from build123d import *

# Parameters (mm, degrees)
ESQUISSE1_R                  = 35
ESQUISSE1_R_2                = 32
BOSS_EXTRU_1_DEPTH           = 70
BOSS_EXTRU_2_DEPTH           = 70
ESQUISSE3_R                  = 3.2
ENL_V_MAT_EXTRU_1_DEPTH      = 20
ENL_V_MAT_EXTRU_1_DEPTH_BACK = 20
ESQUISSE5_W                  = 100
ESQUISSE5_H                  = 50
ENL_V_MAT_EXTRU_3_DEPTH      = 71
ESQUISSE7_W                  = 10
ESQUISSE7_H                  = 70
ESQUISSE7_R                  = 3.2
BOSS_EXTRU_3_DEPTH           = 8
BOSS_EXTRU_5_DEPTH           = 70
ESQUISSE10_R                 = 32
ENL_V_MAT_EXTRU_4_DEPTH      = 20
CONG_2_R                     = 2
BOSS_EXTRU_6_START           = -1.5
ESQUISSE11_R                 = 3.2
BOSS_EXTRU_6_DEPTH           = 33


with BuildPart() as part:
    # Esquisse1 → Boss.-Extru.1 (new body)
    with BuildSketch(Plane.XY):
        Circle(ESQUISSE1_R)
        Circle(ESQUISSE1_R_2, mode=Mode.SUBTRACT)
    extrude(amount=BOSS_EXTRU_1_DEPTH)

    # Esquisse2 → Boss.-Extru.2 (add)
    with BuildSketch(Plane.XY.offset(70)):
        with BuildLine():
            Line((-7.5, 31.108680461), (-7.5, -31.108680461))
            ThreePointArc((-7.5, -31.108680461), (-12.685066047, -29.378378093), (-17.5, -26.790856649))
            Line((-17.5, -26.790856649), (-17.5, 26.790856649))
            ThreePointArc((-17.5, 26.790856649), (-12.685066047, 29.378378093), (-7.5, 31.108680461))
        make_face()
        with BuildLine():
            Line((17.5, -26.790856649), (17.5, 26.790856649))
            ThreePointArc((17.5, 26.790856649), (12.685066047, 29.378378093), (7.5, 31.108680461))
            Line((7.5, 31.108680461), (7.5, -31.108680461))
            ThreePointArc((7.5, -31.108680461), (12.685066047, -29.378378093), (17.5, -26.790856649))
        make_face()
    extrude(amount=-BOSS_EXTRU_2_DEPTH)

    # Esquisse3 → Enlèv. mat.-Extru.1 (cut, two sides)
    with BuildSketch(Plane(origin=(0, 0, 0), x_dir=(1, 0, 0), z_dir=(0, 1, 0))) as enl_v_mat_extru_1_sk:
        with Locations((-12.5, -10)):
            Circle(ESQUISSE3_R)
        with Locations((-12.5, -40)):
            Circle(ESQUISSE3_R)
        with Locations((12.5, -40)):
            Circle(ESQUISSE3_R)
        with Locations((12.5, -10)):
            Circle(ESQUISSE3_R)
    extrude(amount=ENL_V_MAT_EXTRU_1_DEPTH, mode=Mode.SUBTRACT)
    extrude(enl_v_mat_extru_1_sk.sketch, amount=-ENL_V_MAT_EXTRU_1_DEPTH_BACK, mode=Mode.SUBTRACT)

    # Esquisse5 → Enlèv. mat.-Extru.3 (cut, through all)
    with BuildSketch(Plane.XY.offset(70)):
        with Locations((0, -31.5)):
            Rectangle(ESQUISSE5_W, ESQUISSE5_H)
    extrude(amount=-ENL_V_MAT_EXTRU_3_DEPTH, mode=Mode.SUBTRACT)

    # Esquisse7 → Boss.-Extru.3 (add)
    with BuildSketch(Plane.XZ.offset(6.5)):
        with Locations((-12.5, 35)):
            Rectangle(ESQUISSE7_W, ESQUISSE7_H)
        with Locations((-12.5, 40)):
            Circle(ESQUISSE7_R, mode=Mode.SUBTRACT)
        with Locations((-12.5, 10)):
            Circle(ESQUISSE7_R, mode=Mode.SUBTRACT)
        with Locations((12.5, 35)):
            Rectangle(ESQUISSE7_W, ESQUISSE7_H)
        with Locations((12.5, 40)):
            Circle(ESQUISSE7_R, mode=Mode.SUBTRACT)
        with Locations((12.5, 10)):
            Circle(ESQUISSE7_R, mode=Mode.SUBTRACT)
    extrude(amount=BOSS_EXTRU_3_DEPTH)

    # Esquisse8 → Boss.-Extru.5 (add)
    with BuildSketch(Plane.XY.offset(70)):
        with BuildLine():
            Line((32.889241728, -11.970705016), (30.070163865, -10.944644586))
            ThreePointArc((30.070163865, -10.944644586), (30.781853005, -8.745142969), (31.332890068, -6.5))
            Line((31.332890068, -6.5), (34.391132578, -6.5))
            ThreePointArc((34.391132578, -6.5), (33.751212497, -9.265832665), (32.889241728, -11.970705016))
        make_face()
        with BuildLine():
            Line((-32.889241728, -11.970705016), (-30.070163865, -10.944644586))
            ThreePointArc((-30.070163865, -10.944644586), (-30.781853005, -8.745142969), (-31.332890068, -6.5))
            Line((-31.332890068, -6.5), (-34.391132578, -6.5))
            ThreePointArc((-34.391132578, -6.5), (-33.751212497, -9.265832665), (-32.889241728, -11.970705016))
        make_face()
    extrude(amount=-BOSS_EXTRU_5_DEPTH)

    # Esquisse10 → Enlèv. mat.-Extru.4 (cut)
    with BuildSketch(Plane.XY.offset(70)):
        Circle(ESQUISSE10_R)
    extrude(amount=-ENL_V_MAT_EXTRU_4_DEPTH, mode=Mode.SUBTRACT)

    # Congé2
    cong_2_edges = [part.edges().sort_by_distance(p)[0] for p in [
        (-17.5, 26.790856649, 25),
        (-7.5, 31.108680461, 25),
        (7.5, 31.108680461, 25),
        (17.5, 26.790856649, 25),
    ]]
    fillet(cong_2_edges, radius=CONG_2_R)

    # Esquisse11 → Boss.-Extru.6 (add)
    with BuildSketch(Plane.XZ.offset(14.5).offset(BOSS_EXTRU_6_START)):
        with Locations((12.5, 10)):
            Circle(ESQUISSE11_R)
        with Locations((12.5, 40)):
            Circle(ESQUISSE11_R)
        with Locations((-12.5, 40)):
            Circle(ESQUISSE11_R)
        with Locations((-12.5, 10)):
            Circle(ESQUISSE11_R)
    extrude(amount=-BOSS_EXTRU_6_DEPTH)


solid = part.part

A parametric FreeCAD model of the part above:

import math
import FreeCAD as App
import Part
import Sketcher
Q = App.Units.Quantity


def edges_at(feature, points):
    """Names of the edges that pass closest to the given points."""
    edges = feature.Shape.Edges
    near = lambda p: min(range(len(edges)), key=lambda i: edges[i].distToShape(Part.Vertex(*p))[0])
    return sorted({f"Edge{near(p) + 1}" for p in points})


def add_polygon(sketch, points):
    """Adds a closed chain of lines whose ends are joined by coincident constraints."""
    first, n = sketch.GeometryCount, len(points)
    for a, b in zip(points, points[1:] + points[:1]):
        sketch.addGeometry(Part.LineSegment(App.Vector(*a, 0), App.Vector(*b, 0)), False)
    for i in range(n):
        sketch.addConstraint(Sketcher.Constraint("Coincident", first + i, 2, first + (i + 1) % n, 1))

doc = App.newDocument("Part")
body = doc.addObject("PartDesign::Body", "Body")

# Sketch on XY plane
sketch1 = body.newObject("Sketcher::SketchObject", "Sketch")
sketch1.AttachmentSupport = (doc.getObject("XY_Plane"), [""])
sketch1.MapMode = "FlatFace"
sketch1.addGeometry([
    Part.Circle(App.Vector(0, 0, 0), App.Vector(0, 0, 1), 35),
    Part.Circle(App.Vector(0, 0, 0), App.Vector(0, 0, 1), 32),
], False)
sketch1.addConstraint([
    Sketcher.Constraint("Coincident", 0, 3, -1, 1),
    Sketcher.Constraint("Coincident", 1, 3, -1, 1),
    Sketcher.Constraint("Diameter", 0, 70.0),
    Sketcher.Constraint("Diameter", 1, 64.0),
])
pad1 = body.newObject("PartDesign::Pad", "Pad")
pad1.Profile = sketch1
pad1.Length = 70

# Sketch on XY plane
sketch2 = body.newObject("Sketcher::SketchObject", "Sketch001")
sketch2.AttachmentSupport = (doc.getObject("XY_Plane"), [""])
sketch2.MapMode = "FlatFace"
sketch2.AttachmentOffset = App.Placement(App.Vector(0, 0, 70), App.Rotation())
sketch2.addGeometry([
    Part.LineSegment(App.Vector(-8, -31, 0), App.Vector(-8, 31, 0)),  # 0
    Part.ArcOfCircle(Part.Circle(App.Vector(0, 0, 0), App.Vector(0, 0, 1), 32), math.radians(103.55), math.radians(123.15)),  # 1
    Part.LineSegment(App.Vector(-18, 27, 0), App.Vector(-18, -27, 0)),  # 2
    Part.ArcOfCircle(Part.Circle(App.Vector(0, 0, 0), App.Vector(0, 0, 1), 32), math.radians(-123.15), math.radians(-103.55)),  # 3
    Part.LineSegment(App.Vector(18, -27, 0), App.Vector(18, 27, 0)),  # 4
    Part.ArcOfCircle(Part.Circle(App.Vector(0, 0, 0), App.Vector(0, 0, 1), 32), math.radians(56.85), math.radians(76.45)),  # 5
    Part.LineSegment(App.Vector(8, 31, 0), App.Vector(8, -31, 0)),  # 6
    Part.ArcOfCircle(Part.Circle(App.Vector(0, 0, 0), App.Vector(0, 0, 1), 32), math.radians(-76.45), math.radians(-56.85)),  # 7
], False)
sketch2.addConstraint([
    Sketcher.Constraint("Coincident", 0, 2, 1, 1),
    Sketcher.Constraint("Coincident", 1, 2, 2, 1),
    Sketcher.Constraint("Coincident", 2, 2, 3, 1),
    Sketcher.Constraint("Coincident", 3, 2, 0, 1),
    Sketcher.Constraint("Coincident", 4, 2, 5, 1),
    Sketcher.Constraint("Coincident", 5, 2, 6, 1),
    Sketcher.Constraint("Coincident", 6, 2, 7, 1),
    Sketcher.Constraint("Coincident", 7, 2, 4, 1),
    Sketcher.Constraint("Vertical", 0),
    Sketcher.Constraint("Vertical", 2),
    Sketcher.Constraint("Vertical", 4),
    Sketcher.Constraint("Vertical", 6),
    Sketcher.Constraint("Coincident", 1, 3, -1, 1),
    Sketcher.Constraint("Coincident", 3, 3, -1, 1),
    Sketcher.Constraint("Coincident", 5, 3, -1, 1),
    Sketcher.Constraint("Coincident", 7, 3, -1, 1),
    Sketcher.Constraint("Equal", 1, 3),
    Sketcher.Constraint("Equal", 3, 5),
    Sketcher.Constraint("Equal", 5, 7),
    Sketcher.Constraint("Horizontal", 1, 2, 4, 2),
    Sketcher.Constraint("Horizontal", 0, 2, 5, 2),
    Sketcher.Constraint("Radius", 1, 32.0),
    Sketcher.Constraint("DistanceX", 1, 2, 0, 2, 10.0),
    Sketcher.Constraint("DistanceX", 0, 2, 4, 2, 25.0),
])
pad2 = body.newObject("PartDesign::Pad", "Pad001")
pad2.Profile = sketch2
pad2.Length = 70
pad2.Reversed = True

# Sketch on XZ plane
sketch3 = body.newObject("Sketcher::SketchObject", "Sketch002")
sketch3.AttachmentSupport = (doc.getObject("XZ_Plane"), [""])
sketch3.MapMode = "FlatFace"
sketch3.addGeometry([
    Part.Circle(App.Vector(-12.5, 10, 0), App.Vector(0, 0, 1), 3.2),
    Part.Circle(App.Vector(-12.5, 40, 0), App.Vector(0, 0, 1), 3.2),
    Part.Circle(App.Vector(12.5, 40, 0), App.Vector(0, 0, 1), 3.2),
    Part.Circle(App.Vector(12.5, 10, 0), App.Vector(0, 0, 1), 3.2),
], False)
sketch3.addConstraint([
    Sketcher.Constraint("Equal", 0, 1),
    Sketcher.Constraint("Equal", 1, 2),
    Sketcher.Constraint("Equal", 2, 3),
    Sketcher.Constraint("Symmetric", 1, 3, 2, 3, -2),
    Sketcher.Constraint("Symmetric", 0, 3, 3, 3, -2),
    Sketcher.Constraint("Vertical", 0, 3, 1, 3),
    Sketcher.Constraint("Diameter", 0, 6.4),
    Sketcher.Constraint("DistanceY", -1, 1, 0, 3, 10.0),
    Sketcher.Constraint("DistanceY", -1, 1, 1, 3, 40.0),
    Sketcher.Constraint("DistanceX", 1, 3, 2, 3, 25.0),
])
pocket1 = body.newObject("PartDesign::Pocket", "Pocket")
pocket1.Profile = sketch3
pocket1.Type = "TwoLengths"
pocket1.Length = 20
pocket1.Length2 = 20

# Sketch on XY plane
sketch4 = body.newObject("Sketcher::SketchObject", "Sketch003")
sketch4.AttachmentSupport = (doc.getObject("XY_Plane"), [""])
sketch4.MapMode = "FlatFace"
sketch4.AttachmentOffset = App.Placement(App.Vector(0, 0, 70), App.Rotation())
add_polygon(sketch4, [(-50, -6), (-50, -56), (50, -56), (50, -6)])  # lines 0-3
sketch4.addConstraint([
    Sketcher.Constraint("Vertical", 0),
    Sketcher.Constraint("Horizontal", 1),
    Sketcher.Constraint("Vertical", 2),
    Sketcher.Constraint("Horizontal", 3),
    Sketcher.Constraint("DistanceX", 1, 1, 1, 2, 100.0),
    Sketcher.Constraint("DistanceY", 0, 2, 0, 1, 50.0),
    Sketcher.Constraint("DistanceX", 0, 2, -1, 1, 50.0),
    Sketcher.Constraint("DistanceY", 0, 2, -1, 1, 56.5),
])
pocket2 = body.newObject("PartDesign::Pocket", "Pocket001")
pocket2.Profile = sketch4
pocket2.Type = "ThroughAll"

# Sketch on XZ plane
sketch5 = body.newObject("Sketcher::SketchObject", "Sketch004")
sketch5.AttachmentSupport = (doc.getObject("XZ_Plane"), [""])
sketch5.MapMode = "FlatFace"
sketch5.AttachmentOffset = App.Placement(App.Vector(0, 0, 6.5), App.Rotation())
add_polygon(sketch5, [(-17.5, 70), (-17.5, 0), (-7.5, 0), (-7.5, 70)])  # lines 0-3
sketch5.addGeometry(Part.Circle(App.Vector(-12.5, 10, 0), App.Vector(0, 0, 1), 3.2), False)  # 4
sketch5.addGeometry(Part.Circle(App.Vector(-12.5, 40, 0), App.Vector(0, 0, 1), 3.2), False)  # 5
add_polygon(sketch5, [(7.5, 70), (7.5, 0), (17.5, 0), (17.5, 70)])  # lines 6-9
sketch5.addGeometry(Part.Circle(App.Vector(12.5, 10, 0), App.Vector(0, 0, 1), 3.2), False)  # 10
sketch5.addGeometry(Part.Circle(App.Vector(12.5, 40, 0), App.Vector(0, 0, 1), 3.2), False)  # 11
sketch5.addConstraint([
    Sketcher.Constraint("Vertical", 0),
    Sketcher.Constraint("Horizontal", 1),
    Sketcher.Constraint("Vertical", 2),
    Sketcher.Constraint("Horizontal", 3),
    Sketcher.Constraint("Vertical", 6),
    Sketcher.Constraint("Horizontal", 7),
    Sketcher.Constraint("Vertical", 8),
    Sketcher.Constraint("Horizontal", 9),
    Sketcher.Constraint("Equal", 4, 5),
    Sketcher.Constraint("Equal", 5, 10),
    Sketcher.Constraint("Equal", 10, 11),
    Sketcher.Constraint("Symmetric", 1, 2, 6, 2, -1, 1),
    Sketcher.Constraint("Symmetric", 4, 3, 10, 3, -2),
    Sketcher.Constraint("Symmetric", 5, 3, 11, 3, -2),
    Sketcher.Constraint("Symmetric", 0, 2, 7, 2, -2),
    Sketcher.Constraint("Horizontal", 3, 2, 8, 2),
    Sketcher.Constraint("Vertical", 4, 3, 5, 3),
    Sketcher.Constraint("Diameter", 4, 6.4),
    Sketcher.Constraint("DistanceX", 1, 1, 1, 2, 10.0),
    Sketcher.Constraint("DistanceY", 0, 2, 0, 1, 70.0),
    Sketcher.Constraint("DistanceY", -1, 1, 4, 3, 10.0),
    Sketcher.Constraint("DistanceY", -1, 1, 5, 3, 40.0),
    Sketcher.Constraint("DistanceX", 4, 3, 10, 3, 25.0),
    Sketcher.Constraint("DistanceX", 0, 2, 4, 3, 5.0),
])
pad3 = body.newObject("PartDesign::Pad", "Pad002")
pad3.Profile = sketch5
pad3.Length = 8

# Sketch on XY plane
sketch6 = body.newObject("Sketcher::SketchObject", "Sketch005")
sketch6.AttachmentSupport = (doc.getObject("XY_Plane"), [""])
sketch6.MapMode = "FlatFace"
sketch6.AttachmentOffset = App.Placement(App.Vector(0, 0, 70), App.Rotation())
sketch6.addGeometry([
    Part.LineSegment(App.Vector(30.1, -10.9, 0), App.Vector(32.9, -12, 0)),  # 0
    Part.ArcOfCircle(Part.Circle(App.Vector(0, 0, 0), App.Vector(0, 0, 1), 35), math.radians(-20), math.radians(-10.7)),  # 1
    Part.LineSegment(App.Vector(34.4, -6.5, 0), App.Vector(31.3, -6.5, 0)),  # 2
    Part.ArcOfCircle(Part.Circle(App.Vector(0, 0, 0), App.Vector(0, 0, 1), 32), math.radians(-20), math.radians(-11.72)),  # 3
    Part.LineSegment(App.Vector(-32.9, -12, 0), App.Vector(-30.1, -10.9, 0)),  # 4
    Part.ArcOfCircle(Part.Circle(App.Vector(0, 0, 0), App.Vector(0, 0, 1), 32), math.radians(-168.28), math.radians(-160)),  # 5
    Part.LineSegment(App.Vector(-31.3, -6.5, 0), App.Vector(-34.4, -6.5, 0)),  # 6
    Part.ArcOfCircle(Part.Circle(App.Vector(0, 0, 0), App.Vector(0, 0, 1), 35), math.radians(-169.3), math.radians(-160)),  # 7
], False)
sketch6.addConstraint([
    Sketcher.Constraint("Coincident", 0, 2, 1, 1),
    Sketcher.Constraint("Coincident", 1, 2, 2, 1),
    Sketcher.Constraint("Coincident", 2, 2, 3, 2),
    Sketcher.Constraint("Coincident", 3, 1, 0, 1),
    Sketcher.Constraint("Coincident", 4, 2, 5, 2),
    Sketcher.Constraint("Coincident", 5, 1, 6, 1),
    Sketcher.Constraint("Coincident", 6, 2, 7, 1),
    Sketcher.Constraint("Coincident", 7, 2, 4, 1),
    Sketcher.Constraint("Horizontal", 2),
    Sketcher.Constraint("Horizontal", 6),
    Sketcher.Constraint("Coincident", 1, 3, -1, 1),
    Sketcher.Constraint("Coincident", 3, 3, -1, 1),
    Sketcher.Constraint("Coincident", 5, 3, -1, 1),
    Sketcher.Constraint("Coincident", 7, 3, -1, 1),
    Sketcher.Constraint("Equal", 3, 5),
    Sketcher.Constraint("Equal", 1, 7),
    Sketcher.Constraint("Horizontal", 3, 1, 4, 2),
    Sketcher.Constraint("Horizontal", 2, 2, 5, 1),
    Sketcher.Constraint("Horizontal", 0, 2, 7, 2),
    Sketcher.Constraint("Radius", 1, 35.0),
    Sketcher.Constraint("Radius", 3, 32.0),
    Sketcher.Constraint("Angle", 0, Q("-20 deg")),
    Sketcher.Constraint("DistanceY", 1, 2, -1, 1, 6.5),
    Sketcher.Constraint("DistanceX", -1, 1, 0, 2, 32.889242),
])
pad4 = body.newObject("PartDesign::Pad", "Pad003")
pad4.Profile = sketch6
pad4.Length = 70
pad4.Reversed = True

# Sketch on XY plane
sketch7 = body.newObject("Sketcher::SketchObject", "Sketch006")
sketch7.AttachmentSupport = (doc.getObject("XY_Plane"), [""])
sketch7.MapMode = "FlatFace"
sketch7.AttachmentOffset = App.Placement(App.Vector(0, 0, 70), App.Rotation())
sketch7.addGeometry(Part.Circle(App.Vector(0, 0, 0), App.Vector(0, 0, 1), 32), False)
sketch7.addConstraint([
    Sketcher.Constraint("Coincident", 0, 3, -1, 1),
    Sketcher.Constraint("Diameter", 0, 64.0),
])
pocket3 = body.newObject("PartDesign::Pocket", "Pocket002")
pocket3.Profile = sketch7
pocket3.Length = 20
doc.recompute()

fillet = body.newObject("PartDesign::Fillet", "Fillet")
fillet.Base = (pocket3, edges_at(pocket3, [
    (-17.5, 26.791, 25),
    (-7.5, 31.109, 25),
    (7.5, 31.109, 25),
    (17.5, 26.791, 25),
]))
fillet.Radius = 2

# Sketch on XZ plane
sketch8 = body.newObject("Sketcher::SketchObject", "Sketch007")
sketch8.AttachmentSupport = (doc.getObject("XZ_Plane"), [""])
sketch8.MapMode = "FlatFace"
sketch8.AttachmentOffset = App.Placement(App.Vector(0, 0, 13), App.Rotation())
sketch8.addGeometry([
    Part.Circle(App.Vector(12.5, 10, 0), App.Vector(0, 0, 1), 3.2),
    Part.Circle(App.Vector(12.5, 40, 0), App.Vector(0, 0, 1), 3.2),
    Part.Circle(App.Vector(-12.5, 40, 0), App.Vector(0, 0, 1), 3.2),
    Part.Circle(App.Vector(-12.5, 10, 0), App.Vector(0, 0, 1), 3.2),
], False)
sketch8.addConstraint([
    Sketcher.Constraint("Equal", 0, 1),
    Sketcher.Constraint("Equal", 1, 2),
    Sketcher.Constraint("Equal", 2, 3),
    Sketcher.Constraint("Symmetric", 1, 3, 2, 3, -2),
    Sketcher.Constraint("Symmetric", 0, 3, 3, 3, -2),
    Sketcher.Constraint("Vertical", 0, 3, 1, 3),
    Sketcher.Constraint("Diameter", 0, 6.4),
    Sketcher.Constraint("DistanceY", -1, 1, 0, 3, 10.0),
    Sketcher.Constraint("DistanceY", -1, 1, 1, 3, 40.0),
    Sketcher.Constraint("DistanceX", 2, 3, 1, 3, 25.0),
])
pad5 = body.newObject("PartDesign::Pad", "Pad004")
pad5.Profile = sketch8
pad5.Length = 33
pad5.Reversed = True

doc.recompute()
